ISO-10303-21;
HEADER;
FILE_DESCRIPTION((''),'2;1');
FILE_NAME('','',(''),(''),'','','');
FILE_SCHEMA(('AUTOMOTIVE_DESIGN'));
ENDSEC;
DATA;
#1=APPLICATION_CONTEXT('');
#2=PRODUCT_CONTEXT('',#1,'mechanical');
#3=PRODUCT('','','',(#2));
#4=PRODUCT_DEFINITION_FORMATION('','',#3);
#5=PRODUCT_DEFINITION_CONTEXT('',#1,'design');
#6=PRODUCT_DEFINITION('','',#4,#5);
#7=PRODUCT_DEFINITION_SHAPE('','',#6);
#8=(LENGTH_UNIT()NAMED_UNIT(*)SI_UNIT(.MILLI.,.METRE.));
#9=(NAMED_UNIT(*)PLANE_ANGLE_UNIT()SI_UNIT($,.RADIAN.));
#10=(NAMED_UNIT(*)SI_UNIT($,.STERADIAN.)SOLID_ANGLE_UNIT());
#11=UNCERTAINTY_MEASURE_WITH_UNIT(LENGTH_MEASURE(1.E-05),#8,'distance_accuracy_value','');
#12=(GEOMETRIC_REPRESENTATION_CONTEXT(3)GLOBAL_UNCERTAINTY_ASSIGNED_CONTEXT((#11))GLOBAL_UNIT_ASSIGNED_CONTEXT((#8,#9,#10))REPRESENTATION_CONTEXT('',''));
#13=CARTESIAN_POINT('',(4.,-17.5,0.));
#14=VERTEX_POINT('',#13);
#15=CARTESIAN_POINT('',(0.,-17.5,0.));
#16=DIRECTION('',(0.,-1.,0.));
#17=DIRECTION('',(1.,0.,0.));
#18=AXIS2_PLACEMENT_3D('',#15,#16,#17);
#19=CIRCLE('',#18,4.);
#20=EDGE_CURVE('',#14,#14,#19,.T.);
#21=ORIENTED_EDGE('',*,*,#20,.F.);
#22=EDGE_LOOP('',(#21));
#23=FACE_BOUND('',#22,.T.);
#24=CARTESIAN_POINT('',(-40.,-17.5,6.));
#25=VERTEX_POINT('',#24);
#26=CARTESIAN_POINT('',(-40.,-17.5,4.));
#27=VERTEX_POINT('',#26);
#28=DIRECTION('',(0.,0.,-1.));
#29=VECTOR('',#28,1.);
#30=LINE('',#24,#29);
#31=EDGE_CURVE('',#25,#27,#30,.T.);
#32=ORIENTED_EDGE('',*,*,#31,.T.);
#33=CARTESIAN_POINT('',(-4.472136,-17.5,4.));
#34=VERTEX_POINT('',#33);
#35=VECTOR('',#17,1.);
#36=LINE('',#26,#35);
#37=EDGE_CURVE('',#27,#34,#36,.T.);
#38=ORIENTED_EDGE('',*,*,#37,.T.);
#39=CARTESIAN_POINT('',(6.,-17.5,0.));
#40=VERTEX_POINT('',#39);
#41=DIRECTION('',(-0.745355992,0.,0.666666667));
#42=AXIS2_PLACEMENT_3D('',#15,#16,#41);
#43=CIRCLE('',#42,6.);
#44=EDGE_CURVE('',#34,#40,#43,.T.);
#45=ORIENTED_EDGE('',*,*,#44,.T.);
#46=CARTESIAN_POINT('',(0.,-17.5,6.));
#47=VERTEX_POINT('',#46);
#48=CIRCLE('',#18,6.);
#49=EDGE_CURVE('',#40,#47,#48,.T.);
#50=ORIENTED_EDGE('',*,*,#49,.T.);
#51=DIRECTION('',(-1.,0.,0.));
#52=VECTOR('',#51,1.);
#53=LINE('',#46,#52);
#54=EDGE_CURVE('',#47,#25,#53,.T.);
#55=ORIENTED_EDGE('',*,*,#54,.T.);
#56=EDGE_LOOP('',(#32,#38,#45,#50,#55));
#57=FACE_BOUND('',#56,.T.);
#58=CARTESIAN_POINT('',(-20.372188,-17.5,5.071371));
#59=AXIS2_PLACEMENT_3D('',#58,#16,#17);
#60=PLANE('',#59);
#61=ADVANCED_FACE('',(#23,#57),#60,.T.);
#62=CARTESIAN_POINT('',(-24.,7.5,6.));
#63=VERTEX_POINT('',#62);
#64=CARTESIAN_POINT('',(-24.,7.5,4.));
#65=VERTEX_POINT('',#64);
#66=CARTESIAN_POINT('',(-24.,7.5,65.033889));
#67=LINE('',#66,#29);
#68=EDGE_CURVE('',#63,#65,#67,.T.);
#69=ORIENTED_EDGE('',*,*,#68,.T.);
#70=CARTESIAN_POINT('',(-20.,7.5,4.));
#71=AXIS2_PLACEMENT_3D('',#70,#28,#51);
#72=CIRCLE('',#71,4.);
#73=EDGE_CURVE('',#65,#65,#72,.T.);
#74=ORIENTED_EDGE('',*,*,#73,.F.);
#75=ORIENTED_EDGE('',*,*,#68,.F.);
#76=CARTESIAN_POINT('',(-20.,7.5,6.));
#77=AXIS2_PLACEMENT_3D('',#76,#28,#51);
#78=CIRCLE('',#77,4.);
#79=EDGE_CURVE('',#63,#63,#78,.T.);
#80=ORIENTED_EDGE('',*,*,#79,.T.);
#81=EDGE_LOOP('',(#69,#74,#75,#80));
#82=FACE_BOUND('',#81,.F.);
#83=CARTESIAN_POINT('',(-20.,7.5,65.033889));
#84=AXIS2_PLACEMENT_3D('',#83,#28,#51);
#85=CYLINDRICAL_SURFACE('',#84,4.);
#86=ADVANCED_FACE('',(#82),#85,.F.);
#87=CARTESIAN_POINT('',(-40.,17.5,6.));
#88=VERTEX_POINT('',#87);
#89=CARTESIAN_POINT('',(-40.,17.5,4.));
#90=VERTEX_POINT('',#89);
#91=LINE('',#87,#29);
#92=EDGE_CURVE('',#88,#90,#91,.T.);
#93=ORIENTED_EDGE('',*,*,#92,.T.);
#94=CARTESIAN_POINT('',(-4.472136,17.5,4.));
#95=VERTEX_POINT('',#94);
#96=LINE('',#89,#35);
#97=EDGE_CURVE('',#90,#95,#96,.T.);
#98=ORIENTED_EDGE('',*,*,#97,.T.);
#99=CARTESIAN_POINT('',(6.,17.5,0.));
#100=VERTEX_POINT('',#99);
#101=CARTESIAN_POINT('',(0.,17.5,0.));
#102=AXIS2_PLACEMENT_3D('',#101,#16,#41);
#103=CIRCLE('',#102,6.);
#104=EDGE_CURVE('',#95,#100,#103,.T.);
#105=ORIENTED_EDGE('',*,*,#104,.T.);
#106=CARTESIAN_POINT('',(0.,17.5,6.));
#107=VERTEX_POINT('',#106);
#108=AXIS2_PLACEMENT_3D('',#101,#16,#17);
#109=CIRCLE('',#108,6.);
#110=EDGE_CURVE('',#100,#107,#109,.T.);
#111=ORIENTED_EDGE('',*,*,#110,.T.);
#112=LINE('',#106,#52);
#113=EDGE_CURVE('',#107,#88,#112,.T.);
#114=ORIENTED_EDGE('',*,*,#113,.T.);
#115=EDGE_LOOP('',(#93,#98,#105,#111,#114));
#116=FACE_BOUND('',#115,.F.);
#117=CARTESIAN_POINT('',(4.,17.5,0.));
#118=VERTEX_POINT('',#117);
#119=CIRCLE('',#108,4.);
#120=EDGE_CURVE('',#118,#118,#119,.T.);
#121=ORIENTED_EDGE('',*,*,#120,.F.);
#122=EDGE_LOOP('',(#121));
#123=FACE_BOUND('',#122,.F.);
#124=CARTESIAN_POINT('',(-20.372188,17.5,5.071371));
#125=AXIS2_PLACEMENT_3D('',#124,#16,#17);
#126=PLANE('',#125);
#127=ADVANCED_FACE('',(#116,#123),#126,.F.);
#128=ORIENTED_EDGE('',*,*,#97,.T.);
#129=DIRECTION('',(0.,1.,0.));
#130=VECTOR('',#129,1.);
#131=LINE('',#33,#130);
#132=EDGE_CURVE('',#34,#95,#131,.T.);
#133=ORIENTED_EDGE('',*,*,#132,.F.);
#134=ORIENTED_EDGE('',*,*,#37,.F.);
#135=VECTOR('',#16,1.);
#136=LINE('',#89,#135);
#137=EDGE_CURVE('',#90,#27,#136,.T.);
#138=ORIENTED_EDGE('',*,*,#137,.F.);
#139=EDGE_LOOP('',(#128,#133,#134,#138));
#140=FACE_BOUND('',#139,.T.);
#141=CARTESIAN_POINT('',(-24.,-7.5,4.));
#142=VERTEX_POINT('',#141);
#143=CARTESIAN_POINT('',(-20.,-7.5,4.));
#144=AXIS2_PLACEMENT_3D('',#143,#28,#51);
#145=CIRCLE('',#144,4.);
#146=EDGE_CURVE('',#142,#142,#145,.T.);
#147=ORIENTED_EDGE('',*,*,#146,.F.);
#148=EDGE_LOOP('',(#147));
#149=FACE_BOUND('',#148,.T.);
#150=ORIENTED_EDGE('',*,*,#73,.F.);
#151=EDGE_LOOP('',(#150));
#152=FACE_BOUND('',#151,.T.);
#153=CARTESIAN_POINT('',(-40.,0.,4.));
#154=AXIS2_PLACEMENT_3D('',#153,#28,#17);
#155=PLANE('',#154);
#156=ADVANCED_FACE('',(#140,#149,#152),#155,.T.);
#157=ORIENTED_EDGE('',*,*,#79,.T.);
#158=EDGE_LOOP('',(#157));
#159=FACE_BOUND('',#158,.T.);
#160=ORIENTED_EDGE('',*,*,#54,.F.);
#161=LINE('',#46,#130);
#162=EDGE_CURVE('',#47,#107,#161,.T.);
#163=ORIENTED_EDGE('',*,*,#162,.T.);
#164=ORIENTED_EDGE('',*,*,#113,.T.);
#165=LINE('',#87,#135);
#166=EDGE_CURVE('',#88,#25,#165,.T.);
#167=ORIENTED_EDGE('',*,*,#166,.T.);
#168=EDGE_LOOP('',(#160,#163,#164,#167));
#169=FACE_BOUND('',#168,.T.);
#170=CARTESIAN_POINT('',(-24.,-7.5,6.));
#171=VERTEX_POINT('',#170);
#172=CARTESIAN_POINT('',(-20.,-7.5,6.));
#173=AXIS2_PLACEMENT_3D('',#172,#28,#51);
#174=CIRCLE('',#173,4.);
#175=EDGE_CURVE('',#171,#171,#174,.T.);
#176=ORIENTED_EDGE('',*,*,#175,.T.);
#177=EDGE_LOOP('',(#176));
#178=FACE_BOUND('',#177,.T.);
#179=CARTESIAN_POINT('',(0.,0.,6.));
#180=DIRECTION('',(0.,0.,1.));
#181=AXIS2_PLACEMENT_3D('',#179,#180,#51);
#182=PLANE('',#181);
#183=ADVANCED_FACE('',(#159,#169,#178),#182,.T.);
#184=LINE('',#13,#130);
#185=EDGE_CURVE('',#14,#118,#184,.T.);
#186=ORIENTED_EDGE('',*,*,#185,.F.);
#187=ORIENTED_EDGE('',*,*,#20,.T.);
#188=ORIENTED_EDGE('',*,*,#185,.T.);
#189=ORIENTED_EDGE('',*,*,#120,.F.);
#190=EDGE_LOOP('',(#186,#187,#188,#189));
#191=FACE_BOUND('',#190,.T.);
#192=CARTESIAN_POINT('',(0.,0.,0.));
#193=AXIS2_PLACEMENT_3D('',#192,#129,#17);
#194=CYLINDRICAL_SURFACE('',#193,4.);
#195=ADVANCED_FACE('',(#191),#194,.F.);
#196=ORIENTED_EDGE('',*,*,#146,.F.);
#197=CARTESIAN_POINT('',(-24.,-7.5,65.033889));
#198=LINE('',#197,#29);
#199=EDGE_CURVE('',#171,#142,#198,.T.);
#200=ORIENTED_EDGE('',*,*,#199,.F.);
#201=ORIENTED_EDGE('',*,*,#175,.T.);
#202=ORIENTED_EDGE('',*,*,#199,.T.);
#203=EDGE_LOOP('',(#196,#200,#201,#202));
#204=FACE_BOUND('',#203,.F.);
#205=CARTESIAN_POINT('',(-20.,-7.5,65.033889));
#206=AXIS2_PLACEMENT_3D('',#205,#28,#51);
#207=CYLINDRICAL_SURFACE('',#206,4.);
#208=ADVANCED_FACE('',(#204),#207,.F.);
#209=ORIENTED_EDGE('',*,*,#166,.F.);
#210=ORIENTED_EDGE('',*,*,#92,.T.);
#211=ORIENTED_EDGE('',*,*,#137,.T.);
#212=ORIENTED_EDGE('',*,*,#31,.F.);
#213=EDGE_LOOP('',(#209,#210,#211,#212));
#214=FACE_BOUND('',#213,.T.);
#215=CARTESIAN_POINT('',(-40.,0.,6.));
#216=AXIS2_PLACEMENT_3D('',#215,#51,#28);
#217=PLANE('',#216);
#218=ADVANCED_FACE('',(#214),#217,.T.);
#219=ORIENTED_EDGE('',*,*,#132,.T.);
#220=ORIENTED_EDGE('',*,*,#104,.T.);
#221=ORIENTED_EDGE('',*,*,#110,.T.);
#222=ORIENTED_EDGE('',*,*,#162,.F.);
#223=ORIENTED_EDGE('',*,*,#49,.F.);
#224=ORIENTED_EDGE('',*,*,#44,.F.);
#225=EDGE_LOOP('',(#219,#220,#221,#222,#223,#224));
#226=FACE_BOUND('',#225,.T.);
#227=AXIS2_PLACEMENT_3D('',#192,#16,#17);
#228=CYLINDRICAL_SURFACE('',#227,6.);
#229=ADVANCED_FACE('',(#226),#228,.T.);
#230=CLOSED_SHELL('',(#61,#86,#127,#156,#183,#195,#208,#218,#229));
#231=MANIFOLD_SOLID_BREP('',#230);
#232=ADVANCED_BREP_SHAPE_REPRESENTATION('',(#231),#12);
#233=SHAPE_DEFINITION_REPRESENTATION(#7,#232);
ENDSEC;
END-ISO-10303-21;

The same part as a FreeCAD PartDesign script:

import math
import FreeCAD as App
import Part
import Sketcher

doc = App.newDocument("Part")
body = doc.addObject("PartDesign::Body", "Body")

# Sketch on XZ plane
sketch1 = body.newObject("Sketcher::SketchObject", "Sketch")
sketch1.AttachmentSupport = (doc.getObject("XZ_Plane"), [""])
sketch1.MapMode = "FlatFace"
sketch1.addGeometry([
    Part.LineSegment(App.Vector(0, 6, 0), App.Vector(-40, 6, 0)),  # 0
    Part.LineSegment(App.Vector(-40, 6, 0), App.Vector(-40, 4, 0)),  # 1
    Part.LineSegment(App.Vector(-40, 4, 0), App.Vector(-4.5, 4, 0)),  # 2
    Part.ArcOfCircle(Part.Circle(App.Vector(0, 0, 0), App.Vector(0, 0, 1), 6), math.radians(138), math.radians(360)),  # 3
    Part.ArcOfCircle(Part.Circle(App.Vector(0, 0, 0), App.Vector(0, 0, 1), 6), math.radians(0), math.radians(90)),  # 4
    Part.Circle(App.Vector(0, 0, 0), App.Vector(0, 0, 1), 4),  # 5
], False)
sketch1.addConstraint([
    Sketcher.Constraint("Coincident", 0, 2, 1, 1),
    Sketcher.Constraint("Coincident", 1, 2, 2, 1),
    Sketcher.Constraint("Coincident", 2, 2, 3, 1),
    Sketcher.Constraint("Tangent", 3, 2, 4, 1),
    Sketcher.Constraint("Tangent", 4, 2, 0, 1),
    Sketcher.Constraint("Horizontal", 0),
    Sketcher.Constraint("Vertical", 1),
    Sketcher.Constraint("Horizontal", 2),
    Sketcher.Constraint("Coincident", 3, 3, -1, 1),
    Sketcher.Constraint("Coincident", 5, 3, -1, 1),
    Sketcher.Constraint("Equal", 3, 4),
    Sketcher.Constraint("PointOnObject", 3, 2, -1),
    Sketcher.Constraint("Diameter", 5, 8.0),
    Sketcher.Constraint("Radius", 3, 6.0),
    Sketcher.Constraint("DistanceX", 0, 2, 0, 1, 40.0),
    Sketcher.Constraint("DistanceY", 1, 2, 1, 1, 2.0),
])
pad1 = body.newObject("PartDesign::Pad", "Pad")
pad1.Profile = sketch1
pad1.Length = 35
pad1.Midplane = True

# Sketch on XY plane
sketch2 = body.newObject("Sketcher::SketchObject", "Sketch001")
sketch2.AttachmentSupport = (doc.getObject("XY_Plane"), [""])
sketch2.MapMode = "FlatFace"
sketch2.AttachmentOffset = App.Placement(App.Vector(0, 0, 6), App.Rotation())
sketch2.addGeometry([
    Part.Circle(App.Vector(-20, 7.5, 0), App.Vector(0, 0, 1), 4),
    Part.Circle(App.Vector(-20, -7.5, 0), App.Vector(0, 0, 1), 4),
], False)
sketch2.addConstraint([
    Sketcher.Constraint("Equal", 0, 1),
    Sketcher.Constraint("Symmetric", 0, 3, 1, 3, -1),
    Sketcher.Constraint("Diameter", 0, 8.0),
    Sketcher.Constraint("DistanceX", 0, 3, -1, 1, 20.0),
    Sketcher.Constraint("DistanceY", 1, 3, 0, 3, 15.0),
])
doc.recompute()
hole = body.newObject("PartDesign::Hole", "Hole")
hole.Profile = sketch2
hole.ThreadType = "None"
hole.Diameter = 8
hole.DepthType = "ThroughAll"

doc.recompute()
